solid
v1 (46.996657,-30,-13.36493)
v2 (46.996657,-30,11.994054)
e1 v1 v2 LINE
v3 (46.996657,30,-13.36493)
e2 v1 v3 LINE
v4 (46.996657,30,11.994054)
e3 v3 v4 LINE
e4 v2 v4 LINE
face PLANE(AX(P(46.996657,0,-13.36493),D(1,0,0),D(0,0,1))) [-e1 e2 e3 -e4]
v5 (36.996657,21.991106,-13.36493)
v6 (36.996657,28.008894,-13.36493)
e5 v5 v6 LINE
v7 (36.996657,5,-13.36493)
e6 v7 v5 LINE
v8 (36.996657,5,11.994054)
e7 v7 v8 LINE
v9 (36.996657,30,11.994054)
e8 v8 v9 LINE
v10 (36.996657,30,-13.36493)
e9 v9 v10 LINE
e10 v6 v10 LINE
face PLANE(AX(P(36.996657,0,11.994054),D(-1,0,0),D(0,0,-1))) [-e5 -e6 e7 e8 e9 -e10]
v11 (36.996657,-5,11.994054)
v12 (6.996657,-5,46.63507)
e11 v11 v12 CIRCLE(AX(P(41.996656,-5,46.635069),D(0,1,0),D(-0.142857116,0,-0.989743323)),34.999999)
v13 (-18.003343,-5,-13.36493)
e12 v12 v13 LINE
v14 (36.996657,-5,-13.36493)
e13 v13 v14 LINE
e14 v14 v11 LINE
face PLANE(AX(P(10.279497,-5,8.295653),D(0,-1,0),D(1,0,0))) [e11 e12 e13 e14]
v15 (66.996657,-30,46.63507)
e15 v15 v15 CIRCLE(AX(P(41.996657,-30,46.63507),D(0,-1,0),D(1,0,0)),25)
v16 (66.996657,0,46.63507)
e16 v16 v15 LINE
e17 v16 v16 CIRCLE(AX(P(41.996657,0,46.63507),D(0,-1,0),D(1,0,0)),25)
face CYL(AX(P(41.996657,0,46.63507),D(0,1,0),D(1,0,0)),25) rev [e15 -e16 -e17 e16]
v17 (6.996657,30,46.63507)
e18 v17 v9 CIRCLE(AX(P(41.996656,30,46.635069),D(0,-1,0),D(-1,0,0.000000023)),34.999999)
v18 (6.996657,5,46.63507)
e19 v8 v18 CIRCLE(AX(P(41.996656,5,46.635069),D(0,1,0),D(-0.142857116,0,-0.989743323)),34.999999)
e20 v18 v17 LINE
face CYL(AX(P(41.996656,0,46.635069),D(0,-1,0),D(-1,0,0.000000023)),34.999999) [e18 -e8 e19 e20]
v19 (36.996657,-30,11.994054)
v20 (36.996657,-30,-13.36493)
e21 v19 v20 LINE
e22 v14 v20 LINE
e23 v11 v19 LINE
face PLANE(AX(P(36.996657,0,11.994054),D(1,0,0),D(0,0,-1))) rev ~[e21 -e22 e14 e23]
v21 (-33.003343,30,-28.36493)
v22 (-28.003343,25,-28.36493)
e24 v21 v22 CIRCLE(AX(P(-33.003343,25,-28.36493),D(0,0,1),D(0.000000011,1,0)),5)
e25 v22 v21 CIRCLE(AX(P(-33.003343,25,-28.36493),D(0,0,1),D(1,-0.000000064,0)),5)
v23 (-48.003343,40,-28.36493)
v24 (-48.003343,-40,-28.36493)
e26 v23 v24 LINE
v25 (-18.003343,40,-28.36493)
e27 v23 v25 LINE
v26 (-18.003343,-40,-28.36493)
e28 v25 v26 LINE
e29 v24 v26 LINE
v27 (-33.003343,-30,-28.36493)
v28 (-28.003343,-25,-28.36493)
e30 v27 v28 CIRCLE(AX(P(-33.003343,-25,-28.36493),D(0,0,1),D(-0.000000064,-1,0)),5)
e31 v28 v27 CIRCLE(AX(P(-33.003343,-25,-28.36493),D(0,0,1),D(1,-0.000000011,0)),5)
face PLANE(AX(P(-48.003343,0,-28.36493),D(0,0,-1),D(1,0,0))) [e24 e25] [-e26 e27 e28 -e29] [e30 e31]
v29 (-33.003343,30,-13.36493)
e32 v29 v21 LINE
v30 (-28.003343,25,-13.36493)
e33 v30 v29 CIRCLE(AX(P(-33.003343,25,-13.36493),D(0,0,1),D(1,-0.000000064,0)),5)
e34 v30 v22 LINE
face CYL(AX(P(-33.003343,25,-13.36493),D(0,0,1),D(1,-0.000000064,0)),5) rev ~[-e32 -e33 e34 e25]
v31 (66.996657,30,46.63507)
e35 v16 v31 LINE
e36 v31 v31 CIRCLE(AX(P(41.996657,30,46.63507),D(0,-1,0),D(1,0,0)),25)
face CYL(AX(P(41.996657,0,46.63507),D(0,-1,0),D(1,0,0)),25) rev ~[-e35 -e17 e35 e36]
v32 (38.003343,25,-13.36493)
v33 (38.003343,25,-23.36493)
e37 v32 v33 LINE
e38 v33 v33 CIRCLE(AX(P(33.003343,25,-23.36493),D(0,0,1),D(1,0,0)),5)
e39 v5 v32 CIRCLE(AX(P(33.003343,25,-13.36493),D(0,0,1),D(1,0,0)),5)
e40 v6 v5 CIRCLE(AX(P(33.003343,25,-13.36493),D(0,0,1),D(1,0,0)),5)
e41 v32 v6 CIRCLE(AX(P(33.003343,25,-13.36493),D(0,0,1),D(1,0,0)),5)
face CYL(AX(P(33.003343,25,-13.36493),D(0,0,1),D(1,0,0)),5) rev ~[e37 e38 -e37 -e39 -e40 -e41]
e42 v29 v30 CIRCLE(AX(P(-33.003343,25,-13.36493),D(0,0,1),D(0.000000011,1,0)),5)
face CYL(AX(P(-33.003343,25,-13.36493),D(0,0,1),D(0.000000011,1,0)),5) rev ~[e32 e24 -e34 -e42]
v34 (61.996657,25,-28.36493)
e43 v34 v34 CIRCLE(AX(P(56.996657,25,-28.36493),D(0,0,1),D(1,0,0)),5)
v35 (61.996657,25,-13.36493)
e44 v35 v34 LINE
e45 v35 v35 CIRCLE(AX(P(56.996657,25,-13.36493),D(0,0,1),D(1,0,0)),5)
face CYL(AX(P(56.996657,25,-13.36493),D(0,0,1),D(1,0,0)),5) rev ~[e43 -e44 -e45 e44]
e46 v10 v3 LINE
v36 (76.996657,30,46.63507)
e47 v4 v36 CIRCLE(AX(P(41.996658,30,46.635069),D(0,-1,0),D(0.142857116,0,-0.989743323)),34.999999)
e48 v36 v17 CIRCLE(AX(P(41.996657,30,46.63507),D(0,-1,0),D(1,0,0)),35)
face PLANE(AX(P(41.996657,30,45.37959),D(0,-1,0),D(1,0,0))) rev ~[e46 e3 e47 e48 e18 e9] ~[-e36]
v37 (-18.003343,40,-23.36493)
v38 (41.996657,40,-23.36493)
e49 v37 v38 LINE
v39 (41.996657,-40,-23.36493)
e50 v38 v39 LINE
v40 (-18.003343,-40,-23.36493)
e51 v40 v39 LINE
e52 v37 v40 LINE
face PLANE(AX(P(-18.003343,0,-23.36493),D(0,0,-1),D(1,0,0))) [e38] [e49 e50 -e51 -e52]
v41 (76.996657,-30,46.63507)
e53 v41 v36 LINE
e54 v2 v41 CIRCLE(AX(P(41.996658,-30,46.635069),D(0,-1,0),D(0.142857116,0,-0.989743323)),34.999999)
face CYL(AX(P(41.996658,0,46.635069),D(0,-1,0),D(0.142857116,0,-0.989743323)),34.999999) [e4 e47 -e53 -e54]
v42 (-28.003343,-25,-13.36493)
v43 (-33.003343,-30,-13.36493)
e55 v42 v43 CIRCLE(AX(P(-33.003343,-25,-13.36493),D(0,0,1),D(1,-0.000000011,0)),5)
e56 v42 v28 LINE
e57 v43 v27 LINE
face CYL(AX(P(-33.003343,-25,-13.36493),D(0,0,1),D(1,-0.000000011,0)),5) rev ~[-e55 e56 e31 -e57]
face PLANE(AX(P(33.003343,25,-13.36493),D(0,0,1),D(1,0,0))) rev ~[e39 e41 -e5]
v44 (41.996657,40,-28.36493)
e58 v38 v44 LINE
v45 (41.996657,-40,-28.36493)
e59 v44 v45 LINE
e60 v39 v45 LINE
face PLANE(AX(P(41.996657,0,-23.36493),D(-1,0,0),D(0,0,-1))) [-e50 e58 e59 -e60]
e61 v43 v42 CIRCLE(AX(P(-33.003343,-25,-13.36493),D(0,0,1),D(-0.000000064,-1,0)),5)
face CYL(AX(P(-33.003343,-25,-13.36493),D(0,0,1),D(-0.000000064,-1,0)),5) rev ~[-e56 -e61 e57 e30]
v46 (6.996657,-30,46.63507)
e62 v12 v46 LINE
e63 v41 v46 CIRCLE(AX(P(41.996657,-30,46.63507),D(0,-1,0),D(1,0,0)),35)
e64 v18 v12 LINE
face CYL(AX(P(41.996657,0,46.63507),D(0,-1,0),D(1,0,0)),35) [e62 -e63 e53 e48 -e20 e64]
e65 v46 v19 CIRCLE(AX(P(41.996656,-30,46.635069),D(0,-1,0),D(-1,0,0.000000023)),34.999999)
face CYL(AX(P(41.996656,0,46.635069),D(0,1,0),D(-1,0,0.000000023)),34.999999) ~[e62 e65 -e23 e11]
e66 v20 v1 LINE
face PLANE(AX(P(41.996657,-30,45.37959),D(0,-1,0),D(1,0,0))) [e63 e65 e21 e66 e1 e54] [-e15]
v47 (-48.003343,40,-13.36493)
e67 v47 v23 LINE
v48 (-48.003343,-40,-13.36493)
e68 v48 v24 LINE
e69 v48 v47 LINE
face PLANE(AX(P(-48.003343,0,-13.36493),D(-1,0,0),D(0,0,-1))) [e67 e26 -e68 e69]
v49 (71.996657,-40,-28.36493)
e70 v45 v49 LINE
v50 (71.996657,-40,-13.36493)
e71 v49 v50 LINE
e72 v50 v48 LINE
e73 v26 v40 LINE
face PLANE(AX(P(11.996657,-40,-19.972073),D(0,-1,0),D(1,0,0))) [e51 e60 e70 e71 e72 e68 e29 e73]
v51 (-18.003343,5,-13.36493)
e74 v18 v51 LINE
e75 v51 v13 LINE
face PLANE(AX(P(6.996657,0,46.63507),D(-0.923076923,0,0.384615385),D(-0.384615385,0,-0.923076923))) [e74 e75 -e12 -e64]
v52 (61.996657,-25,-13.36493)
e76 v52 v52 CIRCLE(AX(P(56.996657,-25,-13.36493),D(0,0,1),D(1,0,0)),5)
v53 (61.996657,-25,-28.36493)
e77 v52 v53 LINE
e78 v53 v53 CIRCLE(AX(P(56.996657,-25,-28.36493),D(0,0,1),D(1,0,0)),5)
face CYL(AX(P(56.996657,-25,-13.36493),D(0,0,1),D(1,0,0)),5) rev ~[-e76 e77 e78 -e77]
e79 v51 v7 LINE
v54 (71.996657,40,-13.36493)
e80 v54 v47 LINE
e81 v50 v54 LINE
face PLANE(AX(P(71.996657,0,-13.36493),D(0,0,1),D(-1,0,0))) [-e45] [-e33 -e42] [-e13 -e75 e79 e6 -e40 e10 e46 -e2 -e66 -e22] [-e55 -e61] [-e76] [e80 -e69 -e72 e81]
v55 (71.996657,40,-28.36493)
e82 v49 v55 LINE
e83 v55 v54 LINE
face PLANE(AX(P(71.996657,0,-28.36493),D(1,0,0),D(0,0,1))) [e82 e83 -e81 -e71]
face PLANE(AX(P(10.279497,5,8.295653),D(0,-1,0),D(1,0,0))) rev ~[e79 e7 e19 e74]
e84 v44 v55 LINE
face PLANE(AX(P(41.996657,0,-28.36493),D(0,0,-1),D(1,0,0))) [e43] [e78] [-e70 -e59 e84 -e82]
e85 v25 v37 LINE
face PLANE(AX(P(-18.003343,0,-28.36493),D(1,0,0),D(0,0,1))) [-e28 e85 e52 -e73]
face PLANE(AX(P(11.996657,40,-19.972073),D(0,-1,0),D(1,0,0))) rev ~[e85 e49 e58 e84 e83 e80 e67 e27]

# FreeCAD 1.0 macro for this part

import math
import FreeCAD as App
import Part
import Sketcher


def add_polygon(sketch, points):
    """Adds a closed chain of lines whose ends are joined by coincident constraints."""
    first, n = sketch.GeometryCount, len(points)
    for a, b in zip(points, points[1:] + points[:1]):
        sketch.addGeometry(Part.LineSegment(App.Vector(*a, 0), App.Vector(*b, 0)), False)
    for i in range(n):
        sketch.addConstraint(Sketcher.Constraint("Coincident", first + i, 2, first + (i + 1) % n, 1))

doc = App.newDocument("Part")
body = doc.addObject("PartDesign::Body", "Body")

sketch1 = body.newObject("Sketcher::SketchObject", "Sketch")
sketch1.AttachmentSupport = (doc.getObject("XZ_Plane"), [""])
sketch1.MapMode = "FlatFace"
add_polygon(sketch1, [(-48.003343, -13.36493), (-48.003343, -28.36493), (-18.003343, -28.36493), (-18.003343, -23.36493), (41.996657, -23.36493), (41.996657, -28.36493), (71.996657, -28.36493), (71.996657, -13.36493)])
sketch1.addConstraint(Sketcher.Constraint("Vertical", 0))
sketch1.addConstraint(Sketcher.Constraint("Horizontal", 1))
sketch1.addConstraint(Sketcher.Constraint("Vertical", 2))
sketch1.addConstraint(Sketcher.Constraint("Horizontal", 3))
sketch1.addConstraint(Sketcher.Constraint("Vertical", 4))
sketch1.addConstraint(Sketcher.Constraint("Horizontal", 5))
sketch1.addConstraint(Sketcher.Constraint("Vertical", 6))
sketch1.addConstraint(Sketcher.Constraint("Horizontal", 7))
sketch1.addConstraint(Sketcher.Constraint("Horizontal", 1, 2, 4, 2))
sketch1.addConstraint(Sketcher.Constraint("Equal", 1, 5))
sketch1.addConstraint(Sketcher.Constraint("DistanceX", 1, 1, 1, 2, 30.0))
sketch1.addConstraint(Sketcher.Constraint("DistanceX", 3, 1, 3, 2, 60.0))
sketch1.addConstraint(Sketcher.Constraint("DistanceY", 0, 2, 0, 1, 15.0))
sketch1.addConstraint(Sketcher.Constraint("DistanceY", 2, 1, 2, 2, 5.0))
sketch1.addConstraint(Sketcher.Constraint("DistanceY", 0, 2, -1, 1, 28.36493))
sketch1.addConstraint(Sketcher.Constraint("DistanceX", 0, 2, -1, 1, 48.003343))
pad1 = body.newObject("PartDesign::Pad", "Pad")
pad1.Profile = sketch1
pad1.Type = "TwoLengths"
pad1.Length = 40
pad1.Length2 = 40

sketch2 = body.newObject("Sketcher::SketchObject", "Sketch001")
sketch2.AttachmentSupport = (doc.getObject("XZ_Plane"), [""])
sketch2.MapMode = "FlatFace"
sketch2.addGeometry(Part.LineSegment(App.Vector(6.996657, 46.63507, 0), App.Vector(-18.003343, -13.36493, 0)), False)
sketch2.addGeometry(Part.LineSegment(App.Vector(-18.003343, -13.36493, 0), App.Vector(36.996657, -13.36493, 0)), False)
sketch2.addGeometry(Part.LineSegment(App.Vector(36.996657, -13.36493, 0), App.Vector(36.996657, 11.994054, 0)), False)
sketch2.addGeometry(Part.ArcOfCircle(Part.Circle(App.Vector(41.996656, 46.635069, 0), App.Vector(0, 0, 1), 34.999999), math.radians(179.999999), math.radians(261.786791)), False)
sketch2.addConstraint(Sketcher.Constraint("Coincident", 0, 2, 1, 1))
sketch2.addConstraint(Sketcher.Constraint("Coincident", 1, 2, 2, 1))
sketch2.addConstraint(Sketcher.Constraint("Coincident", 2, 2, 3, 2))
sketch2.addConstraint(Sketcher.Constraint("Coincident", 3, 1, 0, 1))
sketch2.addConstraint(Sketcher.Constraint("Horizontal", 1))
sketch2.addConstraint(Sketcher.Constraint("Vertical", 2))
sketch2.addConstraint(Sketcher.Constraint("Radius", 3, 34.999999))
sketch2.addConstraint(Sketcher.Constraint("DistanceX", 1, 1, 1, 2, 55.0))
sketch2.addConstraint(Sketcher.Constraint("Distance", 0, 65.0))
sketch2.addConstraint(Sketcher.Constraint("DistanceX", 0, 2, 3, 3, 59.999999))
sketch2.addConstraint(Sketcher.Constraint("DistanceY", 0, 2, 3, 3, 59.999999))
sketch2.addConstraint(Sketcher.Constraint("DistanceY", -1, 1, 3, 3, 46.635069))
sketch2.addConstraint(Sketcher.Constraint("DistanceX", -1, 1, 3, 3, 41.996656))
pad2 = body.newObject("PartDesign::Pad", "Pad001")
pad2.Profile = sketch2
pad2.Type = "TwoLengths"
pad2.Length = 5
pad2.Length2 = 5

sketch3 = body.newObject("Sketcher::SketchObject", "Sketch002")
sketch3.AttachmentSupport = (doc.getObject("XZ_Plane"), [""])
sketch3.MapMode = "FlatFace"
sketch3.addGeometry(Part.ArcOfCircle(Part.Circle(App.Vector(41.996657, 46.63507, 0), App.Vector(0, 0, 1), 35), math.radians(0), math.radians(180)), False)
sketch3.addGeometry(Part.ArcOfCircle(Part.Circle(App.Vector(41.996656, 46.635069, 0), App.Vector(0, 0, 1), 34.999999), math.radians(179.999999), math.radians(261.786791)), False)
sketch3.addGeometry(Part.LineSegment(App.Vector(36.996657, 11.994054, 0), App.Vector(36.996657, -13.36493, 0)), False)
sketch3.addGeometry(Part.LineSegment(App.Vector(36.996657, -13.36493, 0), App.Vector(46.996657, -13.36493, 0)), False)
sketch3.addGeometry(Part.LineSegment(App.Vector(46.996657, -13.36493, 0), App.Vector(46.996657, 11.994054, 0)), False)
sketch3.addGeometry(Part.ArcOfCircle(Part.Circle(App.Vector(41.996658, 46.635069, 0), App.Vector(0, 0, 1), 34.999999), math.radians(-81.786791), math.radians(0.000001)), False)
sketch3.addGeometry(Part.Circle(App.Vector(41.996657, 46.63507, 0), App.Vector(0, 0, 1), 25), False)
sketch3.addConstraint(Sketcher.Constraint("Tangent", 0, 2, 1, 1))
sketch3.addConstraint(Sketcher.Constraint("Coincident", 1, 2, 2, 1))
sketch3.addConstraint(Sketcher.Constraint("Coincident", 2, 2, 3, 1))
sketch3.addConstraint(Sketcher.Constraint("Coincident", 3, 2, 4, 1))
sketch3.addConstraint(Sketcher.Constraint("Coincident", 4, 2, 5, 1))
sketch3.addConstraint(Sketcher.Constraint("Tangent", 5, 2, 0, 1))
sketch3.addConstraint(Sketcher.Constraint("Vertical", 2))
sketch3.addConstraint(Sketcher.Constraint("Horizontal", 3))
sketch3.addConstraint(Sketcher.Constraint("Vertical", 4))
sketch3.addConstraint(Sketcher.Constraint("Coincident", 6, 3, 0, 3))
sketch3.addConstraint(Sketcher.Constraint("Equal", 0, 1))
sketch3.addConstraint(Sketcher.Constraint("Equal", 1, 5))
sketch3.addConstraint(Sketcher.Constraint("Horizontal", 6, 3, 0, 2))
sketch3.addConstraint(Sketcher.Constraint("Horizontal", 1, 2, 4, 2))
sketch3.addConstraint(Sketcher.Constraint("Horizontal", 0, 2, 5, 2))
sketch3.addConstraint(Sketcher.Constraint("Diameter", 6, 50.0))
sketch3.addConstraint(Sketcher.Constraint("Radius", 0, 35.0))
sketch3.addConstraint(Sketcher.Constraint("DistanceX", 3, 1, 3, 2, 10.0))
sketch3.addConstraint(Sketcher.Constraint("DistanceY", 2, 2, 1, 3, 59.999999))
sketch3.addConstraint(Sketcher.Constraint("DistanceY", -1, 1, 0, 3, 46.63507))
sketch3.addConstraint(Sketcher.Constraint("DistanceX", -1, 1, 5, 3, 41.996658))
pad3 = body.newObject("PartDesign::Pad", "Pad002")
pad3.Profile = sketch3
pad3.Type = "TwoLengths"
pad3.Length = 30
pad3.Length2 = 30

sketch4 = body.newObject("Sketcher::SketchObject", "Sketch003")
sketch4.AttachmentSupport = (doc.getObject("XY_Plane"), [""])
sketch4.MapMode = "FlatFace"
sketch4.AttachmentOffset = App.Placement(App.Vector(0, 0, -13.36493), App.Rotation())
sketch4.addGeometry(Part.ArcOfCircle(Part.Circle(App.Vector(-33.003343, -25, 0), App.Vector(0, 0, 1), 5), math.radians(-90.000004), math.radians(0.000004)), False)
sketch4.addGeometry(Part.ArcOfCircle(Part.Circle(App.Vector(-33.003343, -25, 0), App.Vector(0, 0, 1), 5), math.radians(-0.000001), math.radians(270.000001)), False)
sketch4.addGeometry(Part.ArcOfCircle(Part.Circle(App.Vector(-33.003343, 25, 0), App.Vector(0, 0, 1), 5), math.radians(89.999999), math.radians(360.000001)), False)
sketch4.addGeometry(Part.ArcOfCircle(Part.Circle(App.Vector(-33.003343, 25, 0), App.Vector(0, 0, 1), 5), math.radians(-0.000004), math.radians(90.000004)), False)
sketch4.addGeometry(Part.Circle(App.Vector(33.003343, 25, 0), App.Vector(0, 0, 1), 5), False)
sketch4.addGeometry(Part.Circle(App.Vector(56.996657, -25, 0), App.Vector(0, 0, 1), 5), False)
sketch4.addGeometry(Part.Circle(App.Vector(56.996657, 25, 0), App.Vector(0, 0, 1), 5), False)
sketch4.addConstraint(Sketcher.Constraint("Tangent", 0, 1, 1, 2))
sketch4.addConstraint(Sketcher.Constraint("Coincident", 1, 1, 0, 2))
sketch4.addConstraint(Sketcher.Constraint("Tangent", 2, 1, 3, 2))
sketch4.addConstraint(Sketcher.Constraint("Coincident", 3, 1, 2, 2))
sketch4.addConstraint(Sketcher.Constraint("Equal", 1, 2))
sketch4.addConstraint(Sketcher.Constraint("Equal", 3, 4))
sketch4.addConstraint(Sketcher.Constraint("Equal", 4, 5))
sketch4.addConstraint(Sketcher.Constraint("Equal", 5, 6))
sketch4.addConstraint(Sketcher.Constraint("Symmetric", 0, 3, 4, 3, -1, 1))
sketch4.addConstraint(Sketcher.Constraint("Symmetric", 2, 3, 4, 3, -2))
sketch4.addConstraint(Sketcher.Constraint("Symmetric", 5, 3, 6, 3, -1))
sketch4.addConstraint(Sketcher.Constraint("Horizontal", 1, 3, 5, 3))
sketch4.addConstraint(Sketcher.Constraint("Horizontal", 5, 3, 1, 1))
sketch4.addConstraint(Sketcher.Constraint("Horizontal", 6, 3, 3, 1))
sketch4.addConstraint(Sketcher.Constraint("Vertical", 3, 3, 0, 1))
sketch4.addConstraint(Sketcher.Constraint("Vertical", 0, 1, 2, 1))
sketch4.addConstraint(Sketcher.Constraint("Diameter", 4, 10.0))
sketch4.addConstraint(Sketcher.Constraint("DistanceY", 0, 3, -1, 1, 25.0))
sketch4.addConstraint(Sketcher.Constraint("DistanceX", 0, 3, 5, 3, 90.0))
sketch4.addConstraint(Sketcher.Constraint("DistanceX", 0, 3, -1, 1, 33.003343))
pocket1 = body.newObject("PartDesign::Pocket", "Pocket")
pocket1.Profile = sketch4
pocket1.Length = 25

doc.recompute()
